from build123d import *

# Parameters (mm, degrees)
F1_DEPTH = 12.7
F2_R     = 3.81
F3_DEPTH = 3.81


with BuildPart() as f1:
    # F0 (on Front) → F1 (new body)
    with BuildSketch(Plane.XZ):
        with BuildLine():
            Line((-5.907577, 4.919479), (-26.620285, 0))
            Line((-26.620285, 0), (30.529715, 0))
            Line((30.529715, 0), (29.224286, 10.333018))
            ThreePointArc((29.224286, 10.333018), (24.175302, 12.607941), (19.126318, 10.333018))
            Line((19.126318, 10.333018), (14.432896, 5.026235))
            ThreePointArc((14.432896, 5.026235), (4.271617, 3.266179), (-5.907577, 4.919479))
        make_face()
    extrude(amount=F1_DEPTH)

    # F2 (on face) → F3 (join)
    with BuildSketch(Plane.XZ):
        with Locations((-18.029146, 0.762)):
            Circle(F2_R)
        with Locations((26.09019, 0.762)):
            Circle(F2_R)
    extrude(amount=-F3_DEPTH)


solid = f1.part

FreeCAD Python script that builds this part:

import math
import FreeCAD as App
import Part
import Sketcher
Q = App.Units.Quantity

doc = App.newDocument("Part")
body = doc.addObject("PartDesign::Body", "Body")

# Sketch on XZ plane
sketch1 = body.newObject("Sketcher::SketchObject", "Sketch")
sketch1.AttachmentSupport = (doc.getObject("XZ_Plane"), [""])
sketch1.MapMode = "FlatFace"
sketch1.addGeometry(Part.LineSegment(App.Vector(-6, 5, 0), App.Vector(-27, 0, 0)), False)
sketch1.addGeometry(Part.LineSegment(App.Vector(-27, 0, 0), App.Vector(31, 0, 0)), False)
sketch1.addGeometry(Part.LineSegment(App.Vector(31, 0, 0), App.Vector(29, 10, 0)), False)
sketch1.addGeometry(Part.ArcOfCircle(Part.Circle(App.Vector(24, 6, 0), App.Vector(0, 0, 1), 7), math.radians(41), math.radians(139)), False)
sketch1.addGeometry(Part.LineSegment(App.Vector(19, 10, 0), App.Vector(14, 5, 0)), False)
sketch1.addGeometry(Part.ArcOfCircle(Part.Circle(App.Vector(4, 34, 0), App.Vector(0, 0, 1), 31), math.radians(-109), math.radians(-71)), False)
sketch1.addConstraint(Sketcher.Constraint("Coincident", 0, 2, 1, 1))
sketch1.addConstraint(Sketcher.Constraint("Coincident", 1, 2, 2, 1))
sketch1.addConstraint(Sketcher.Constraint("Coincident", 2, 2, 3, 1))
sketch1.addConstraint(Sketcher.Constraint("Tangent", 3, 2, 4, 1))
sketch1.addConstraint(Sketcher.Constraint("Coincident", 4, 2, 5, 2))
sketch1.addConstraint(Sketcher.Constraint("Coincident", 5, 1, 0, 1))
sketch1.addConstraint(Sketcher.Constraint("Horizontal", 1))
sketch1.addConstraint(Sketcher.Constraint("PointOnObject", 0, 2, -1))
sketch1.addConstraint(Sketcher.Constraint("Horizontal", 2, 2, 3, 2))
sketch1.addConstraint(Sketcher.Constraint("DistanceX", 1, 1, 1, 2, Q("2.25 in")))
sketch1.addConstraint(Sketcher.Constraint("Radius", 3, Q("6.740341 mm")))
sketch1.addConstraint(Sketcher.Constraint("Radius", 5, Q("31.156412 mm")))
sketch1.addConstraint(Sketcher.Constraint("Distance", 4, Q("7.084501 mm")))
sketch1.addConstraint(Sketcher.Constraint("DistanceX", -1, 1, 3, 3, Q("24.175302 mm")))
sketch1.addConstraint(Sketcher.Constraint("DistanceY", -1, 1, 3, 3, Q("5.8676 mm")))
sketch1.addConstraint(Sketcher.Constraint("DistanceX", 5, 3, 4, 2, Q("10.3248 mm")))
sketch1.addConstraint(Sketcher.Constraint("DistanceY", -1, 1, 5, 3, Q("34.422162 mm")))
sketch1.addConstraint(Sketcher.Constraint("DistanceY", -1, 1, 5, 1, Q("4.919479 mm")))
sketch1.addConstraint(Sketcher.Constraint("DistanceX", 0, 2, 5, 3, Q("30.728381 mm")))
pad1 = body.newObject("PartDesign::Pad", "Pad")
pad1.Profile = sketch1
pad1.Length = Q("0.5 in")

# Sketch on XZ plane
sketch2 = body.newObject("Sketcher::SketchObject", "Sketch001")
sketch2.AttachmentSupport = (doc.getObject("XZ_Plane"), [""])
sketch2.MapMode = "FlatFace"
sketch2.addGeometry(Part.Circle(App.Vector(-18, 0.8, 0), App.Vector(0, 0, 1), 3.8), False)
sketch2.addGeometry(Part.Circle(App.Vector(26.1, 0.8, 0), App.Vector(0, 0, 1), 3.8), False)
sketch2.addConstraint(Sketcher.Constraint("Equal", 0, 1))
sketch2.addConstraint(Sketcher.Constraint("Horizontal", 0, 3, 1, 3))
sketch2.addConstraint(Sketcher.Constraint("Diameter", 0, Q("0.3 in")))
sketch2.addConstraint(Sketcher.Constraint("DistanceY", -1, 1, 0, 3, Q("0.03 in")))
sketch2.addConstraint(Sketcher.Constraint("DistanceX", -1, 1, 1, 3, Q("26.09019 mm")))
sketch2.addConstraint(Sketcher.Constraint("DistanceX", 0, 3, -1, 1, Q("18.029146 mm")))
pad2 = body.newObject("PartDesign::Pad", "Pad001")
pad2.Profile = sketch2
pad2.Length = Q("0.15 in")
pad2.Reversed = True

doc.recompute()
